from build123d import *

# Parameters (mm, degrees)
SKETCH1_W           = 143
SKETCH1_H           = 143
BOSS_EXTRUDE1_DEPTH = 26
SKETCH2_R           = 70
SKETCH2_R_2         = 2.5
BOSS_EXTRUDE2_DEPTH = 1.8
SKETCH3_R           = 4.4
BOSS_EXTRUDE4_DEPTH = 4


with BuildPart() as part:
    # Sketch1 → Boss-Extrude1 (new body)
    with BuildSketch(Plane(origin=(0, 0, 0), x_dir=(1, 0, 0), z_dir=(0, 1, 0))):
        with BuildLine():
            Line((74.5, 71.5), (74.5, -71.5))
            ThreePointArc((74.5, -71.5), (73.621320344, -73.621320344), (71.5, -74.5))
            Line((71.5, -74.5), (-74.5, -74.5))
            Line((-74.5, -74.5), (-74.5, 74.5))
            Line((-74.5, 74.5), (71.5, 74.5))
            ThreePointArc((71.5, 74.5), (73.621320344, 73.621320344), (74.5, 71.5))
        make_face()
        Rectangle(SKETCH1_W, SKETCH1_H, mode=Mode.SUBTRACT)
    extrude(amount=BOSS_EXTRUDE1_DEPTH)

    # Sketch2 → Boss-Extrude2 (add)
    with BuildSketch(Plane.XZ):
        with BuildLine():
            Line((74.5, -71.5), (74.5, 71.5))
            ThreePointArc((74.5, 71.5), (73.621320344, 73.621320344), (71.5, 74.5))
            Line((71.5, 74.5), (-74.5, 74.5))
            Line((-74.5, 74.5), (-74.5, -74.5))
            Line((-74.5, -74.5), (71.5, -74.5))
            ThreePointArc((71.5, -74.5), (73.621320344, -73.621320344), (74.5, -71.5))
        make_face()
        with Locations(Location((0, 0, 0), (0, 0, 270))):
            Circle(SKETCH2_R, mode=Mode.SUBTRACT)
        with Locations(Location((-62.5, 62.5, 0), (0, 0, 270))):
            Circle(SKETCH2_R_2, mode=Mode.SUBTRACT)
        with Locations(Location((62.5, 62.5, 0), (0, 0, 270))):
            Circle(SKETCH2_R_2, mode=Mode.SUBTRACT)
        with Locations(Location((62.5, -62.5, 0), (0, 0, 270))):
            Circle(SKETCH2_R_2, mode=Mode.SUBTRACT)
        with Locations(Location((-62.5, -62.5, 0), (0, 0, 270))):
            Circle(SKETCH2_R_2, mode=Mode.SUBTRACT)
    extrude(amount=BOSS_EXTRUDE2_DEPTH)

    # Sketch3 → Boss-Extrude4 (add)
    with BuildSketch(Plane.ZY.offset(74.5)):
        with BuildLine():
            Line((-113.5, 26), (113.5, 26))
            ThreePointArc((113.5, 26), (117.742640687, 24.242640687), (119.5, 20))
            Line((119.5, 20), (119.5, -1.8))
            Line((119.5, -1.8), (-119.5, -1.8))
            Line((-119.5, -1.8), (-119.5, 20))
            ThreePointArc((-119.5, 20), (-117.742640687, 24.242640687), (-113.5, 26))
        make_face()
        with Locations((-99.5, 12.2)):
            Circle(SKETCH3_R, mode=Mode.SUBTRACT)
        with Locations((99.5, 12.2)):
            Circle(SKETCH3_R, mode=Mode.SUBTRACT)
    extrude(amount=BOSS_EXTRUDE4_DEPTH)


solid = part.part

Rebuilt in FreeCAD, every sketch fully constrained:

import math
import FreeCAD as App
import Part
import Sketcher
from FreeCAD import Vector
Q = App.Units.Quantity


def add_polygon(sketch, points):
    """Adds a closed chain of lines whose ends are joined by coincident constraints."""
    first, n = sketch.GeometryCount, len(points)
    for a, b in zip(points, points[1:] + points[:1]):
        sketch.addGeometry(Part.LineSegment(App.Vector(*a, 0), App.Vector(*b, 0)), False)
    for i in range(n):
        sketch.addConstraint(Sketcher.Constraint("Coincident", first + i, 2, first + (i + 1) % n, 1))

doc = App.newDocument("Part")
body = doc.addObject("PartDesign::Body", "Body")

sketch1 = body.newObject("Sketcher::SketchObject", "Sketch")
sketch1.AttachmentSupport = (doc.getObject("XZ_Plane"), [""])
sketch1.MapMode = "FlatFace"
sketch1.addGeometry(Part.LineSegment(Vector(74.5, 71.5, 0), Vector(74.5, -71.5, 0)), False)
sketch1.addGeometry(Part.ArcOfCircle(Part.Circle(Vector(71.5, -71.5, 0), Vector(0, 0, 1), 3), math.radians(-90), math.radians(0)), False)
sketch1.addGeometry(Part.LineSegment(Vector(71.5, -74.5, 0), Vector(-74.5, -74.5, 0)), False)
sketch1.addGeometry(Part.LineSegment(Vector(-74.5, -74.5, 0), Vector(-74.5, 74.5, 0)), False)
sketch1.addGeometry(Part.LineSegment(Vector(-74.5, 74.5, 0), Vector(71.5, 74.5, 0)), False)
sketch1.addGeometry(Part.ArcOfCircle(Part.Circle(Vector(71.5, 71.5, 0), Vector(0, 0, 1), 3), math.radians(0), math.radians(90)), False)
add_polygon(sketch1, [(-71.5, 71.5), (-71.5, -71.5), (71.5, -71.5), (71.5, 71.5)])
sketch1.addConstraint([
    Sketcher.Constraint("Tangent", 0, 2, 1, 2),
    Sketcher.Constraint("Tangent", 1, 1, 2, 1),
    Sketcher.Constraint("Coincident", 2, 2, 3, 1),
    Sketcher.Constraint("Coincident", 3, 2, 4, 1),
    Sketcher.Constraint("Tangent", 4, 2, 5, 2),
    Sketcher.Constraint("Tangent", 5, 1, 0, 1),
    Sketcher.Constraint("Vertical", 0),
    Sketcher.Constraint("Horizontal", 2),
    Sketcher.Constraint("Vertical", 3),
    Sketcher.Constraint("Horizontal", 4),
    Sketcher.Constraint("Vertical", 6),
    Sketcher.Constraint("Horizontal", 7),
    Sketcher.Constraint("Vertical", 8),
    Sketcher.Constraint("Horizontal", 9),
    Sketcher.Constraint("Coincident", 7, 2, 1, 3),
    Sketcher.Constraint("Coincident", 8, 2, 5, 3),
    Sketcher.Constraint("Symmetric", 6, 2, 8, 2, -1, 1),
    Sketcher.Constraint("Equal", 9, 0),
    Sketcher.Constraint("Radius", 1, Q("3 mm")),
    Sketcher.Constraint("DistanceX", 2, 2, 2, 1, Q("146 mm")),
    Sketcher.Constraint("DistanceX", 7, 1, 7, 2, Q("143 mm")),
])
pad1 = body.newObject("PartDesign::Pad", "Pad")
pad1.Profile = sketch1
pad1.Length = 26
pad1.Reversed = True

sketch2 = body.newObject("Sketcher::SketchObject", "Sketch001")
sketch2.AttachmentSupport = (doc.getObject("XZ_Plane"), [""])
sketch2.MapMode = "FlatFace"
sketch2.addGeometry([
    Part.LineSegment(Vector(74.5, -71.5, 0), Vector(74.5, 71.5, 0)),
    Part.ArcOfCircle(Part.Circle(Vector(71.5, 71.5, 0), Vector(0, 0, 1), 3), math.radians(0), math.radians(90)),
    Part.LineSegment(Vector(71.5, 74.5, 0), Vector(-74.5, 74.5, 0)),
    Part.LineSegment(Vector(-74.5, 74.5, 0), Vector(-74.5, -74.5, 0)),
    Part.LineSegment(Vector(-74.5, -74.5, 0), Vector(71.5, -74.5, 0)),
    Part.ArcOfCircle(Part.Circle(Vector(71.5, -71.5, 0), Vector(0, 0, 1), 3), math.radians(-90), math.radians(0)),
    Part.Circle(Vector(-62.5, -62.5, 0), Vector(0, 0, 1), 2.5),
    Part.Circle(Vector(62.5, -62.5, 0), Vector(0, 0, 1), 2.5),
    Part.Circle(Vector(-62.5, 62.5, 0), Vector(0, 0, 1), 2.5),
    Part.Circle(Vector(0, 0, 0), Vector(0, 0, 1), 70),
    Part.Circle(Vector(62.5, 62.5, 0), Vector(0, 0, 1), 2.5),
], False)
sketch2.addConstraint([
    Sketcher.Constraint("Tangent", 0, 2, 1, 1),
    Sketcher.Constraint("Tangent", 1, 2, 2, 1),
    Sketcher.Constraint("Coincident", 2, 2, 3, 1),
    Sketcher.Constraint("Coincident", 3, 2, 4, 1),
    Sketcher.Constraint("Tangent", 4, 2, 5, 1),
    Sketcher.Constraint("Tangent", 5, 2, 0, 1),
    Sketcher.Constraint("Vertical", 0),
    Sketcher.Constraint("Horizontal", 2),
    Sketcher.Constraint("Vertical", 3),
    Sketcher.Constraint("Horizontal", 4),
    Sketcher.Constraint("Coincident", 9, 3, -1, 1),
    Sketcher.Constraint("Equal", 1, 5),
    Sketcher.Constraint("Equal", 6, 7),
    Sketcher.Constraint("Equal", 7, 8),
    Sketcher.Constraint("Equal", 8, 10),
    Sketcher.Constraint("Symmetric", 7, 3, 8, 3, -1, 1),
    Sketcher.Constraint("Symmetric", 6, 3, 10, 3, -1, 1),
    Sketcher.Constraint("Symmetric", 6, 3, 7, 3, -2),
    Sketcher.Constraint("Diameter", 6, Q("5 mm")),
    Sketcher.Constraint("Diameter", 9, Q("140 mm")),
    Sketcher.Constraint("Radius", 1, Q("3 mm")),
    Sketcher.Constraint("DistanceX", 2, 2, 2, 1, Q("146 mm")),
    Sketcher.Constraint("DistanceY", 0, 1, 0, 2, Q("143 mm")),
    Sketcher.Constraint("DistanceX", 6, 3, 5, 3, Q("134 mm")),
    Sketcher.Constraint("DistanceY", 5, 3, 6, 3, Q("9 mm")),
    Sketcher.Constraint("DistanceX", 7, 3, 5, 3, Q("9 mm")),
    Sketcher.Constraint("DistanceY", 6, 3, 8, 3, Q("125 mm")),
])
pad2 = body.newObject("PartDesign::Pad", "Pad001")
pad2.Profile = sketch2
pad2.Length = 1.8

sketch3 = body.newObject("Sketcher::SketchObject", "Sketch002")
sketch3.AttachmentSupport = (doc.getObject("YZ_Plane"), [""])
sketch3.MapMode = "FlatFace"
sketch3.AttachmentOffset = App.Placement(Vector(0, 0, -74.5), App.Rotation())
sketch3.addGeometry([
    Part.LineSegment(Vector(26, 113.5, 0), Vector(26, -113.5, 0)),
    Part.ArcOfCircle(Part.Circle(Vector(20, -113.5, 0), Vector(0, 0, 1), 6), math.radians(-90), math.radians(0)),
    Part.LineSegment(Vector(20, -119.5, 0), Vector(-1.8, -119.5, 0)),
    Part.LineSegment(Vector(-1.8, -119.5, 0), Vector(-1.8, 119.5, 0)),
    Part.LineSegment(Vector(-1.8, 119.5, 0), Vector(20, 119.5, 0)),
    Part.ArcOfCircle(Part.Circle(Vector(20, 113.5, 0), Vector(0, 0, 1), 6), math.radians(0), math.radians(90)),
    Part.Circle(Vector(12.2, 99.5, 0), Vector(0, 0, 1), 4.4),
    Part.Circle(Vector(12.2, -99.5, 0), Vector(0, 0, 1), 4.4),
], False)
sketch3.addConstraint([
    Sketcher.Constraint("Tangent", 0, 2, 1, 2),
    Sketcher.Constraint("Tangent", 1, 1, 2, 1),
    Sketcher.Constraint("Coincident", 2, 2, 3, 1),
    Sketcher.Constraint("Coincident", 3, 2, 4, 1),
    Sketcher.Constraint("Tangent", 4, 2, 5, 2),
    Sketcher.Constraint("Tangent", 5, 1, 0, 1),
    Sketcher.Constraint("Vertical", 0),
    Sketcher.Constraint("Horizontal", 2),
    Sketcher.Constraint("Vertical", 3),
    Sketcher.Constraint("Horizontal", 4),
    Sketcher.Constraint("Equal", 1, 5),
    Sketcher.Constraint("Equal", 6, 7),
    Sketcher.Constraint("Symmetric", 6, 3, 7, 3, -1),
    Sketcher.Constraint("Radius", 1, Q("6 mm")),
    Sketcher.Constraint("Diameter", 6, Q("8.8 mm")),
    Sketcher.Constraint("DistanceY", 0, 2, 0, 1, Q("227 mm")),
    Sketcher.Constraint("DistanceX", 2, 2, 2, 1, Q("21.8 mm")),
    Sketcher.Constraint("DistanceX", -1, 1, 1, 3, Q("20 mm")),
    Sketcher.Constraint("DistanceY", 6, 3, 5, 3, Q("14 mm")),
    Sketcher.Constraint("DistanceY", 1, 3, 7, 3, Q("14 mm")),
    Sketcher.Constraint("DistanceX", 2, 2, 7, 3, Q("14 mm")),
])
pad3 = body.newObject("PartDesign::Pad", "Pad002")
pad3.Profile = sketch3
pad3.Length = 4
pad3.Reversed = True

doc.recompute()
